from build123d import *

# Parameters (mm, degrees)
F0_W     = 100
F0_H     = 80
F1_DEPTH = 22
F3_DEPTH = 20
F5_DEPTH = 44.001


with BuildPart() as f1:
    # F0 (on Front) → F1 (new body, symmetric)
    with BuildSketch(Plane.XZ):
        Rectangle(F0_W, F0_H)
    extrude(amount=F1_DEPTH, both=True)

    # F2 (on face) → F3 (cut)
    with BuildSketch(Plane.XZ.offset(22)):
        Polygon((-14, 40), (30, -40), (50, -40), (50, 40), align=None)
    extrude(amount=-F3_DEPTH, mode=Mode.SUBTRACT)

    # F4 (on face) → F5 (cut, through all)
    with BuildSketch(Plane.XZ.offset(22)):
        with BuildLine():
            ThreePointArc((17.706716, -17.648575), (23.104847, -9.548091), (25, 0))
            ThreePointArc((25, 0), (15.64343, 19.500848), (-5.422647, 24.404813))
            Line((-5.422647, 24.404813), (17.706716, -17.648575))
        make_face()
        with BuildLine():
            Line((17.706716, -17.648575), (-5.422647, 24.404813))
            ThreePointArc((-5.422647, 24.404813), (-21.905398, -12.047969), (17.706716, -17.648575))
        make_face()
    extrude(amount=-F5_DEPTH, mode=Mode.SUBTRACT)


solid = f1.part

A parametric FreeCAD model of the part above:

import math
import FreeCAD as App
import Part
import Sketcher
from FreeCAD import Vector
Q = App.Units.Quantity


def add_polygon(sketch, points):
    """Adds a closed chain of lines whose ends are joined by coincident constraints."""
    first, n = sketch.GeometryCount, len(points)
    for a, b in zip(points, points[1:] + points[:1]):
        sketch.addGeometry(Part.LineSegment(App.Vector(*a, 0), App.Vector(*b, 0)), False)
    for i in range(n):
        sketch.addConstraint(Sketcher.Constraint("Coincident", first + i, 2, first + (i + 1) % n, 1))

doc = App.newDocument("Part")
body = doc.addObject("PartDesign::Body", "Body")

sketch1 = body.newObject("Sketcher::SketchObject", "Sketch")
sketch1.AttachmentSupport = (doc.getObject("XZ_Plane"), [""])
sketch1.MapMode = "FlatFace"
add_polygon(sketch1, [(-50, 40), (-50, -40), (50, -40), (50, 40)])
sketch1.addConstraint([
    Sketcher.Constraint("Vertical", 0),
    Sketcher.Constraint("Horizontal", 1),
    Sketcher.Constraint("Vertical", 2),
    Sketcher.Constraint("Horizontal", 3),
    Sketcher.Constraint("Symmetric", 0, 2, 2, 2, -1, 1),
    Sketcher.Constraint("DistanceX", 1, 1, 1, 2, Q("100 mm")),
    Sketcher.Constraint("DistanceY", 0, 2, 0, 1, Q("80 mm")),
])
pad1 = body.newObject("PartDesign::Pad", "Pad")
pad1.Profile = sketch1
pad1.Length = 44
pad1.Midplane = True

sketch2 = body.newObject("Sketcher::SketchObject", "Sketch001")
sketch2.AttachmentSupport = (doc.getObject("XZ_Plane"), [""])
sketch2.MapMode = "FlatFace"
sketch2.AttachmentOffset = App.Placement(Vector(0, 0, 22), App.Rotation())
add_polygon(sketch2, [(-14, 40), (30, -40), (50, -40), (50, 40)])
sketch2.addConstraint([
    Sketcher.Constraint("Horizontal", 1),
    Sketcher.Constraint("Vertical", 2),
    Sketcher.Constraint("Horizontal", 3),
    Sketcher.Constraint("DistanceX", 1, 1, 1, 2, Q("20 mm")),
    Sketcher.Constraint("DistanceX", 3, 2, 3, 1, Q("64 mm")),
    Sketcher.Constraint("DistanceY", 2, 1, 2, 2, Q("80 mm")),
    Sketcher.Constraint("DistanceX", -1, 1, 0, 2, Q("30 mm")),
    Sketcher.Constraint("DistanceY", 0, 2, -1, 1, Q("40 mm")),
])
pocket1 = body.newObject("PartDesign::Pocket", "Pocket")
pocket1.Profile = sketch2
pocket1.Length = 20

sketch3 = body.newObject("Sketcher::SketchObject", "Sketch002")
sketch3.AttachmentSupport = (doc.getObject("XZ_Plane"), [""])
sketch3.MapMode = "FlatFace"
sketch3.AttachmentOffset = App.Placement(Vector(0, 0, 22), App.Rotation())
sketch3.addGeometry([
    Part.ArcOfCircle(Part.Circle(Vector(0, 0, 0), Vector(0, 0, 1), 25), math.radians(-45), math.radians(0)),
    Part.ArcOfCircle(Part.Circle(Vector(0, 0, 0), Vector(0, 0, 1), 25), math.radians(0), math.radians(103)),
    Part.ArcOfCircle(Part.Circle(Vector(0, 0, 0), Vector(0, 0, 1), 25), math.radians(103), math.radians(315)),
], False)
sketch3.addConstraint([
    Sketcher.Constraint("Tangent", 0, 2, 1, 1),
    Sketcher.Constraint("Tangent", 1, 2, 2, 1),
    Sketcher.Constraint("Tangent", 2, 2, 0, 1),
    Sketcher.Constraint("Coincident", 0, 3, -1, 1),
    Sketcher.Constraint("PointOnObject", 0, 2, -1),
    Sketcher.Constraint("Radius", 0, Q("25 mm")),
    Sketcher.Constraint("DistanceY", 2, 2, 1, 2, Q("42.053388 mm")),
    Sketcher.Constraint("DistanceX", 1, 2, -1, 1, Q("5.422647 mm")),
])
pocket2 = body.newObject("PartDesign::Pocket", "Pocket001")
pocket2.Profile = sketch3
pocket2.Type = "ThroughAll"

doc.recompute()
